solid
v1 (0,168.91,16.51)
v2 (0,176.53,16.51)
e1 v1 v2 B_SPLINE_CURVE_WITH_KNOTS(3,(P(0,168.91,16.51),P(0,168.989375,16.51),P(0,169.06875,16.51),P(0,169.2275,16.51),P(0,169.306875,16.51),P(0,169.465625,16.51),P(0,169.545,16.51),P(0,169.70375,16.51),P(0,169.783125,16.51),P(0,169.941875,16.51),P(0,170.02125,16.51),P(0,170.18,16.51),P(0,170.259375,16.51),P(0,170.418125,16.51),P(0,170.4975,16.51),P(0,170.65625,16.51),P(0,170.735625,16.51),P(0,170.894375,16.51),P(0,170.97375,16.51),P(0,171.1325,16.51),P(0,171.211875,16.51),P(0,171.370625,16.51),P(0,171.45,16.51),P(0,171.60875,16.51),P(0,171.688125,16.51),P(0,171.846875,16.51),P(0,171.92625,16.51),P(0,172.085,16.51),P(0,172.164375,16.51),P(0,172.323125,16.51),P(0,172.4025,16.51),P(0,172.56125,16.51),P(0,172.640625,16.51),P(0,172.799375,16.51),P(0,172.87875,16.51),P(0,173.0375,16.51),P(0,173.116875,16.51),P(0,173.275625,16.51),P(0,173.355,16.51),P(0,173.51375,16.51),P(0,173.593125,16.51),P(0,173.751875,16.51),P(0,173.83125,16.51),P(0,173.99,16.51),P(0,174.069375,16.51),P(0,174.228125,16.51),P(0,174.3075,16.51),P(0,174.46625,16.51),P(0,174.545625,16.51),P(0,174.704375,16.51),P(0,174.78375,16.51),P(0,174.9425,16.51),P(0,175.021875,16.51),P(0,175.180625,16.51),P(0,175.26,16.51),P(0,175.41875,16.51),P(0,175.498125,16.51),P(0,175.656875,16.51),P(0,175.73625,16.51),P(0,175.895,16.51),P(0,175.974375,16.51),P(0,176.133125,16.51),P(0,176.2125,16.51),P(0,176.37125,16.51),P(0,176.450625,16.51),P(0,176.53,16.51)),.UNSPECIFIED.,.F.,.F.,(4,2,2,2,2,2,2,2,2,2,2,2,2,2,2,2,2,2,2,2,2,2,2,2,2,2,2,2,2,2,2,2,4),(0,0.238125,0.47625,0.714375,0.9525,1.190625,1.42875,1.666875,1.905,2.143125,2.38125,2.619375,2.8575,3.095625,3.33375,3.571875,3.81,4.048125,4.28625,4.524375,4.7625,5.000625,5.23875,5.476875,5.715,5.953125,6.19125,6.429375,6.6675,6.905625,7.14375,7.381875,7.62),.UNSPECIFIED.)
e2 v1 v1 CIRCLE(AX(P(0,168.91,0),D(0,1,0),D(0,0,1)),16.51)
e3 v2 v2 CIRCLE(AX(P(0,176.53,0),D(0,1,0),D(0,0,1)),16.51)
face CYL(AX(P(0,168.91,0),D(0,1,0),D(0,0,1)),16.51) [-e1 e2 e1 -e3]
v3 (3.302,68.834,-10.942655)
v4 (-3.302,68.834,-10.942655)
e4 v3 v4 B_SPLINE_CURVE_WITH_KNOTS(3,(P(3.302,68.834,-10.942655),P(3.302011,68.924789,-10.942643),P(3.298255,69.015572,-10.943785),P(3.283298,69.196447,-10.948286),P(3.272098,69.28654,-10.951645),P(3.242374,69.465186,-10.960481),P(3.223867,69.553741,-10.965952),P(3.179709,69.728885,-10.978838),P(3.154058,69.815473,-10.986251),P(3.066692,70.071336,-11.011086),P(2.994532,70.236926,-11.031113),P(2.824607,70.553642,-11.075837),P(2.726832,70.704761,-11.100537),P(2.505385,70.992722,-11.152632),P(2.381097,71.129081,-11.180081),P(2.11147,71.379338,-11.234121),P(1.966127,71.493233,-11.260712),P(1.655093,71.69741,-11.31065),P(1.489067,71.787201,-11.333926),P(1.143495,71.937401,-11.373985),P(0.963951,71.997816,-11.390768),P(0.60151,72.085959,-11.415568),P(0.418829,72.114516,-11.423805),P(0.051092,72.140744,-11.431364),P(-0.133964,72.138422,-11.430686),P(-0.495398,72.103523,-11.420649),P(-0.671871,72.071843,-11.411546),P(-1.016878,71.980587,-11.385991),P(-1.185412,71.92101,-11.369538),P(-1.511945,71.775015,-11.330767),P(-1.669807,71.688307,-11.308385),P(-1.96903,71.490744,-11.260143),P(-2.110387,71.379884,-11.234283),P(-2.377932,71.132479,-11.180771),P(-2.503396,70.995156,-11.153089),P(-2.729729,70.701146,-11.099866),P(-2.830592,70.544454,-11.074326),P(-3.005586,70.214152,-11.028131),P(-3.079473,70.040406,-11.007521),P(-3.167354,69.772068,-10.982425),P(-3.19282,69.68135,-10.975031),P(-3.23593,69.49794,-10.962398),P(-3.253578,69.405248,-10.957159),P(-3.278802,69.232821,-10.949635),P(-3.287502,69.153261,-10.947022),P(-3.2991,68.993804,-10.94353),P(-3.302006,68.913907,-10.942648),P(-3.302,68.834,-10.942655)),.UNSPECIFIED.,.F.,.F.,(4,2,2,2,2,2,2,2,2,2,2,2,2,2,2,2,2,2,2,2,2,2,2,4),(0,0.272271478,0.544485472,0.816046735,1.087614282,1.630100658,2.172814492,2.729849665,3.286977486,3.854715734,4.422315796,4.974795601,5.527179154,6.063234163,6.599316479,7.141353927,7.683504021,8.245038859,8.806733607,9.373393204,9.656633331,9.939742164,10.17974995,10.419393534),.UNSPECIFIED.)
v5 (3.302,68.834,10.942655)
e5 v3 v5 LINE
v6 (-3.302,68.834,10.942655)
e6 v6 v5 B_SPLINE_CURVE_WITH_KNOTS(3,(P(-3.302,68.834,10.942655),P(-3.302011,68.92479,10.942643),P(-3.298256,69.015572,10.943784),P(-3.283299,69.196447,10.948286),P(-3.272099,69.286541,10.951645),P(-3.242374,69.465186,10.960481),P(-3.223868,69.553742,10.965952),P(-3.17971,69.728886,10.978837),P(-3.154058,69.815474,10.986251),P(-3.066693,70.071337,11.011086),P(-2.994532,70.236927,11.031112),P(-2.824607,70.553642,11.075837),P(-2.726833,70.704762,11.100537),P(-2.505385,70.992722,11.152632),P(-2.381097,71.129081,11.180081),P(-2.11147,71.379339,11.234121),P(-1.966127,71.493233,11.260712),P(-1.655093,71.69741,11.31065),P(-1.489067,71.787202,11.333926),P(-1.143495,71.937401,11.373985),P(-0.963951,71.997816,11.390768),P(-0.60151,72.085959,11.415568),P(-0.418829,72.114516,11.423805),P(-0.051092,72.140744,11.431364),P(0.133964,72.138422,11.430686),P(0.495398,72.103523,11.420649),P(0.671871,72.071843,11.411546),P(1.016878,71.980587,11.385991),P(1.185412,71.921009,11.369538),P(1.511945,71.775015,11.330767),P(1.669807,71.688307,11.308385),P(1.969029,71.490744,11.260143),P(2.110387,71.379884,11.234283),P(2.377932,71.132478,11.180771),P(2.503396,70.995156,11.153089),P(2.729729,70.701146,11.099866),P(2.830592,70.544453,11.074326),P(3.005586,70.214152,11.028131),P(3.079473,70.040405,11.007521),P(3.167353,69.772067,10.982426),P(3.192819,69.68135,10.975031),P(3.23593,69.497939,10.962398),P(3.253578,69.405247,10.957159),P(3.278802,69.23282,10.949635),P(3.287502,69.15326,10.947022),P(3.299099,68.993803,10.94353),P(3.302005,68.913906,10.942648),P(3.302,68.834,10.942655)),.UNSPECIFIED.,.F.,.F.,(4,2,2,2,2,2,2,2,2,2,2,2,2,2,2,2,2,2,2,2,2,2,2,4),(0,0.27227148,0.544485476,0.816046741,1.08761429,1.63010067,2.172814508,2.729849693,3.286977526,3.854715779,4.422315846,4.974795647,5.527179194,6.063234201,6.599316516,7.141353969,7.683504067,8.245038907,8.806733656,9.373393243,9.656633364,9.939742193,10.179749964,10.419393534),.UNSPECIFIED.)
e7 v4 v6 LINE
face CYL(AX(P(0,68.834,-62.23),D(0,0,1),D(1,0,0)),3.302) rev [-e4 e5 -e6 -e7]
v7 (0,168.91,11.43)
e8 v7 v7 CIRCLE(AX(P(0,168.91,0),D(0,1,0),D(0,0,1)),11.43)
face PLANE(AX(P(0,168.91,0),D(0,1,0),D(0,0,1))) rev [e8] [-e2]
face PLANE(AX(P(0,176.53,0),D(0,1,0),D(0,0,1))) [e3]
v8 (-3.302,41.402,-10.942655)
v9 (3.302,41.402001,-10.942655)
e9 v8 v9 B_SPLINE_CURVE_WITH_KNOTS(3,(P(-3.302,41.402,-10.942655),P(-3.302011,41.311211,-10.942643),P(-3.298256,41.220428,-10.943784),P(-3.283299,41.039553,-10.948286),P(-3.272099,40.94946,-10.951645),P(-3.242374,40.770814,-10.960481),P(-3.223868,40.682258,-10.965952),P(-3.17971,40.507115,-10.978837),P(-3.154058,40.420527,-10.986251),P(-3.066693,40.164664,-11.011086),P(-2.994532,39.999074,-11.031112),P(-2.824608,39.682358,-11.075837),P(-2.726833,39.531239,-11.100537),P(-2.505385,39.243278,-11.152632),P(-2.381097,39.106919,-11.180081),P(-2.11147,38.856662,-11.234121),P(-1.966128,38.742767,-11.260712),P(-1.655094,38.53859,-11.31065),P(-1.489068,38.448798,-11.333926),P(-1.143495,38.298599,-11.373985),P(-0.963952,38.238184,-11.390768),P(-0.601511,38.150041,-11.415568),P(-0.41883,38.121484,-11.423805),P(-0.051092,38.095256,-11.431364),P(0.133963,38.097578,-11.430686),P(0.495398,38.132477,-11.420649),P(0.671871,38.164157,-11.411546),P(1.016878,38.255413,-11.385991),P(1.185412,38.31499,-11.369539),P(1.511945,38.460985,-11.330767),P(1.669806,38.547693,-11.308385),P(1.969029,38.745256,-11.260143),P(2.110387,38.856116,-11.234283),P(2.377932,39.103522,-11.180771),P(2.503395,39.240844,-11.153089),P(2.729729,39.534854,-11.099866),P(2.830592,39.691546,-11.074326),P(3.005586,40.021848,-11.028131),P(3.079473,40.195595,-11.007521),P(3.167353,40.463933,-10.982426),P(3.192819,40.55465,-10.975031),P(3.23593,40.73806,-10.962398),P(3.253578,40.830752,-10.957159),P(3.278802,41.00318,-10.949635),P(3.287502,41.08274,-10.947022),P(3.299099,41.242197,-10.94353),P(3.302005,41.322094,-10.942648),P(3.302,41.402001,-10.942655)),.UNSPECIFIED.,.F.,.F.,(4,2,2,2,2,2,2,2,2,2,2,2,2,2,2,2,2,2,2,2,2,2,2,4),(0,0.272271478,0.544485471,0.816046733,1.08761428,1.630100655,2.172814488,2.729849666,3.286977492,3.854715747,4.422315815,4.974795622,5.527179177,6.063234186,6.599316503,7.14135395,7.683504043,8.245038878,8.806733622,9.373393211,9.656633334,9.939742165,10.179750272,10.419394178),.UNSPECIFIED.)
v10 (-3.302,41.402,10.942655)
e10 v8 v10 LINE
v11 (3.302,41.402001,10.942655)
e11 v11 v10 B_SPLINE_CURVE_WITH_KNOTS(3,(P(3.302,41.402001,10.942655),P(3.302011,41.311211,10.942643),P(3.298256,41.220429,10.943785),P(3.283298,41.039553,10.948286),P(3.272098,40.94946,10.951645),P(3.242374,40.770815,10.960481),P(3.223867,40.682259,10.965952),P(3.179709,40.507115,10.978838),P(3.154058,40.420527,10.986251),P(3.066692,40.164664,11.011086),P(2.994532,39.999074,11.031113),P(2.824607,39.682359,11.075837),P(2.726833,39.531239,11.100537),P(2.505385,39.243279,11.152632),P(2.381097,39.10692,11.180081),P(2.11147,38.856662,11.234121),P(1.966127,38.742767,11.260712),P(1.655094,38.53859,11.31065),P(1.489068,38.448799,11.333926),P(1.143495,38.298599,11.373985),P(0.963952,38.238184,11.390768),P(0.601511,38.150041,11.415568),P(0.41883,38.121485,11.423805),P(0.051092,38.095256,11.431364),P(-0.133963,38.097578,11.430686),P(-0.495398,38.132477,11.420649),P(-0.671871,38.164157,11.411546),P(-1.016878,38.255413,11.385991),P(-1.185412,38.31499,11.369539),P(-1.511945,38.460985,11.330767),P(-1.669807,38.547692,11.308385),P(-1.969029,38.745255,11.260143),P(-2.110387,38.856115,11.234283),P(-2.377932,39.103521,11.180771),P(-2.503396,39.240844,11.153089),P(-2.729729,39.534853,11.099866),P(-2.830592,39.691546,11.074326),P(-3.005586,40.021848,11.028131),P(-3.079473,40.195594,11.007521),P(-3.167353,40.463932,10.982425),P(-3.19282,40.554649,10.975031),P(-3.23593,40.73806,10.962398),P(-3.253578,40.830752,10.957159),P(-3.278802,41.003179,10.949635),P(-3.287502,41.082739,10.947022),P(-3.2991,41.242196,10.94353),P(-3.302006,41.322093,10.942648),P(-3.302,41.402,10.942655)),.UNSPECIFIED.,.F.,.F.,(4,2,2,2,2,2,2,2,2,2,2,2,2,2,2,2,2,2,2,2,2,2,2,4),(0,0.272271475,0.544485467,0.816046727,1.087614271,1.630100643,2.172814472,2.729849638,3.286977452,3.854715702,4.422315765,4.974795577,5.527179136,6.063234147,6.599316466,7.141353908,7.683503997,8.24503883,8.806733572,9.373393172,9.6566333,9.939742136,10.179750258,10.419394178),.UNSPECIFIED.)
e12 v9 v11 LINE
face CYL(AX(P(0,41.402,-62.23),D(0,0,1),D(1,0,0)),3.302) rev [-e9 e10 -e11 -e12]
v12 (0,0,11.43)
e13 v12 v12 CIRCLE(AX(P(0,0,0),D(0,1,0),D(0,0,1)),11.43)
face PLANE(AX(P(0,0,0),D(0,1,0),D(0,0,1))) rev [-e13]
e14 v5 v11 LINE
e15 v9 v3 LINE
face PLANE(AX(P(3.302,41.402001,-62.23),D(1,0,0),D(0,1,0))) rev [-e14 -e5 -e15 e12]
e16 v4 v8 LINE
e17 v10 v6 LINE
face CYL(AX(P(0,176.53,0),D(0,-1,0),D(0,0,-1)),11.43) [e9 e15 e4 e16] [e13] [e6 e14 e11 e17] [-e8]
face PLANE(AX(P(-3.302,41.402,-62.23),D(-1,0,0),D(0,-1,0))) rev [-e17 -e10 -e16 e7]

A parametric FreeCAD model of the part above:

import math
import FreeCAD as App
import Part
import Sketcher
from FreeCAD import Vector
Q = App.Units.Quantity

doc = App.newDocument("Part")
body = doc.addObject("PartDesign::Body", "Body")

sketch1 = body.newObject("Sketcher::SketchObject", "Sketch")
sketch1.AttachmentSupport = (doc.getObject("XZ_Plane"), [""])
sketch1.MapMode = "FlatFace"
sketch1.addGeometry(Part.Circle(Vector(0, 0, 0), Vector(0, 0, 1), 11), False)
sketch1.addConstraint(Sketcher.Constraint("Coincident", 0, 3, -1, 1))
sketch1.addConstraint(Sketcher.Constraint("Diameter", 0, Q("0.9 in")))
pad1 = body.newObject("PartDesign::Pad", "Pad")
pad1.Profile = sketch1
pad1.Length = Q("6.95 in")
pad1.Reversed = True

sketch2 = body.newObject("Sketcher::SketchObject", "Sketch001")
sketch2.AttachmentSupport = (doc.getObject("XY_Plane"), [""])
sketch2.MapMode = "FlatFace"
sketch2.AttachmentOffset = App.Placement(Vector(0, 0, 0.45 * 25.4), App.Rotation())
sketch2.addGeometry(Part.LineSegment(Vector(3.3, 41.4, 0), Vector(3.3, 68.8, 0)), False)
sketch2.addGeometry(Part.ArcOfCircle(Part.Circle(Vector(0, 68.8, 0), Vector(0, 0, 1), 3.3), math.radians(0), math.radians(180)), False)
sketch2.addGeometry(Part.LineSegment(Vector(-3.3, 68.8, 0), Vector(-3.3, 41.4, 0)), False)
sketch2.addGeometry(Part.ArcOfCircle(Part.Circle(Vector(0, 41.4, 0), Vector(0, 0, 1), 3.3), math.radians(180), math.radians(360)), False)
sketch2.addConstraint(Sketcher.Constraint("Tangent", 0, 2, 1, 1))
sketch2.addConstraint(Sketcher.Constraint("Tangent", 1, 2, 2, 1))
sketch2.addConstraint(Sketcher.Constraint("Tangent", 2, 2, 3, 1))
sketch2.addConstraint(Sketcher.Constraint("Tangent", 3, 2, 0, 1))
sketch2.addConstraint(Sketcher.Constraint("Vertical", 0))
sketch2.addConstraint(Sketcher.Constraint("Vertical", 2))
sketch2.addConstraint(Sketcher.Constraint("PointOnObject", 1, 3, -2))
sketch2.addConstraint(Sketcher.Constraint("Radius", 1, Q("0.13 in")))
sketch2.addConstraint(Sketcher.Constraint("DistanceY", 0, 1, 0, 2, Q("1.08 in")))
sketch2.addConstraint(Sketcher.Constraint("DistanceY", -1, 1, 1, 3, Q("2.71 in")))
pocket1 = body.newObject("PartDesign::Pocket", "Pocket")
pocket1.Profile = sketch2
pocket1.Length = Q("2.9 in")

sketch3 = body.newObject("Sketcher::SketchObject", "Sketch002")
sketch3.AttachmentSupport = (doc.getObject("XZ_Plane"), [""])
sketch3.MapMode = "FlatFace"
sketch3.AttachmentOffset = App.Placement(Vector(0, 0, -6.65 * 25.4), App.Rotation())
sketch3.addGeometry(Part.Circle(Vector(0, 0, 0), Vector(0, 0, 1), 17), False)
sketch3.addGeometry(Part.Circle(Vector(0, 0, 0), Vector(0, 0, 1), 11), False)
sketch3.addConstraint(Sketcher.Constraint("Coincident", 0, 3, -1, 1))
sketch3.addConstraint(Sketcher.Constraint("Coincident", 1, 3, -1, 1))
sketch3.addConstraint(Sketcher.Constraint("Diameter", 0, Q("1.3 in")))
sketch3.addConstraint(Sketcher.Constraint("Diameter", 1, Q("0.9 in")))
pad2 = body.newObject("PartDesign::Pad", "Pad001")
pad2.Profile = sketch3
pad2.Length = Q("0.3 in")
pad2.Reversed = True

doc.recompute()
